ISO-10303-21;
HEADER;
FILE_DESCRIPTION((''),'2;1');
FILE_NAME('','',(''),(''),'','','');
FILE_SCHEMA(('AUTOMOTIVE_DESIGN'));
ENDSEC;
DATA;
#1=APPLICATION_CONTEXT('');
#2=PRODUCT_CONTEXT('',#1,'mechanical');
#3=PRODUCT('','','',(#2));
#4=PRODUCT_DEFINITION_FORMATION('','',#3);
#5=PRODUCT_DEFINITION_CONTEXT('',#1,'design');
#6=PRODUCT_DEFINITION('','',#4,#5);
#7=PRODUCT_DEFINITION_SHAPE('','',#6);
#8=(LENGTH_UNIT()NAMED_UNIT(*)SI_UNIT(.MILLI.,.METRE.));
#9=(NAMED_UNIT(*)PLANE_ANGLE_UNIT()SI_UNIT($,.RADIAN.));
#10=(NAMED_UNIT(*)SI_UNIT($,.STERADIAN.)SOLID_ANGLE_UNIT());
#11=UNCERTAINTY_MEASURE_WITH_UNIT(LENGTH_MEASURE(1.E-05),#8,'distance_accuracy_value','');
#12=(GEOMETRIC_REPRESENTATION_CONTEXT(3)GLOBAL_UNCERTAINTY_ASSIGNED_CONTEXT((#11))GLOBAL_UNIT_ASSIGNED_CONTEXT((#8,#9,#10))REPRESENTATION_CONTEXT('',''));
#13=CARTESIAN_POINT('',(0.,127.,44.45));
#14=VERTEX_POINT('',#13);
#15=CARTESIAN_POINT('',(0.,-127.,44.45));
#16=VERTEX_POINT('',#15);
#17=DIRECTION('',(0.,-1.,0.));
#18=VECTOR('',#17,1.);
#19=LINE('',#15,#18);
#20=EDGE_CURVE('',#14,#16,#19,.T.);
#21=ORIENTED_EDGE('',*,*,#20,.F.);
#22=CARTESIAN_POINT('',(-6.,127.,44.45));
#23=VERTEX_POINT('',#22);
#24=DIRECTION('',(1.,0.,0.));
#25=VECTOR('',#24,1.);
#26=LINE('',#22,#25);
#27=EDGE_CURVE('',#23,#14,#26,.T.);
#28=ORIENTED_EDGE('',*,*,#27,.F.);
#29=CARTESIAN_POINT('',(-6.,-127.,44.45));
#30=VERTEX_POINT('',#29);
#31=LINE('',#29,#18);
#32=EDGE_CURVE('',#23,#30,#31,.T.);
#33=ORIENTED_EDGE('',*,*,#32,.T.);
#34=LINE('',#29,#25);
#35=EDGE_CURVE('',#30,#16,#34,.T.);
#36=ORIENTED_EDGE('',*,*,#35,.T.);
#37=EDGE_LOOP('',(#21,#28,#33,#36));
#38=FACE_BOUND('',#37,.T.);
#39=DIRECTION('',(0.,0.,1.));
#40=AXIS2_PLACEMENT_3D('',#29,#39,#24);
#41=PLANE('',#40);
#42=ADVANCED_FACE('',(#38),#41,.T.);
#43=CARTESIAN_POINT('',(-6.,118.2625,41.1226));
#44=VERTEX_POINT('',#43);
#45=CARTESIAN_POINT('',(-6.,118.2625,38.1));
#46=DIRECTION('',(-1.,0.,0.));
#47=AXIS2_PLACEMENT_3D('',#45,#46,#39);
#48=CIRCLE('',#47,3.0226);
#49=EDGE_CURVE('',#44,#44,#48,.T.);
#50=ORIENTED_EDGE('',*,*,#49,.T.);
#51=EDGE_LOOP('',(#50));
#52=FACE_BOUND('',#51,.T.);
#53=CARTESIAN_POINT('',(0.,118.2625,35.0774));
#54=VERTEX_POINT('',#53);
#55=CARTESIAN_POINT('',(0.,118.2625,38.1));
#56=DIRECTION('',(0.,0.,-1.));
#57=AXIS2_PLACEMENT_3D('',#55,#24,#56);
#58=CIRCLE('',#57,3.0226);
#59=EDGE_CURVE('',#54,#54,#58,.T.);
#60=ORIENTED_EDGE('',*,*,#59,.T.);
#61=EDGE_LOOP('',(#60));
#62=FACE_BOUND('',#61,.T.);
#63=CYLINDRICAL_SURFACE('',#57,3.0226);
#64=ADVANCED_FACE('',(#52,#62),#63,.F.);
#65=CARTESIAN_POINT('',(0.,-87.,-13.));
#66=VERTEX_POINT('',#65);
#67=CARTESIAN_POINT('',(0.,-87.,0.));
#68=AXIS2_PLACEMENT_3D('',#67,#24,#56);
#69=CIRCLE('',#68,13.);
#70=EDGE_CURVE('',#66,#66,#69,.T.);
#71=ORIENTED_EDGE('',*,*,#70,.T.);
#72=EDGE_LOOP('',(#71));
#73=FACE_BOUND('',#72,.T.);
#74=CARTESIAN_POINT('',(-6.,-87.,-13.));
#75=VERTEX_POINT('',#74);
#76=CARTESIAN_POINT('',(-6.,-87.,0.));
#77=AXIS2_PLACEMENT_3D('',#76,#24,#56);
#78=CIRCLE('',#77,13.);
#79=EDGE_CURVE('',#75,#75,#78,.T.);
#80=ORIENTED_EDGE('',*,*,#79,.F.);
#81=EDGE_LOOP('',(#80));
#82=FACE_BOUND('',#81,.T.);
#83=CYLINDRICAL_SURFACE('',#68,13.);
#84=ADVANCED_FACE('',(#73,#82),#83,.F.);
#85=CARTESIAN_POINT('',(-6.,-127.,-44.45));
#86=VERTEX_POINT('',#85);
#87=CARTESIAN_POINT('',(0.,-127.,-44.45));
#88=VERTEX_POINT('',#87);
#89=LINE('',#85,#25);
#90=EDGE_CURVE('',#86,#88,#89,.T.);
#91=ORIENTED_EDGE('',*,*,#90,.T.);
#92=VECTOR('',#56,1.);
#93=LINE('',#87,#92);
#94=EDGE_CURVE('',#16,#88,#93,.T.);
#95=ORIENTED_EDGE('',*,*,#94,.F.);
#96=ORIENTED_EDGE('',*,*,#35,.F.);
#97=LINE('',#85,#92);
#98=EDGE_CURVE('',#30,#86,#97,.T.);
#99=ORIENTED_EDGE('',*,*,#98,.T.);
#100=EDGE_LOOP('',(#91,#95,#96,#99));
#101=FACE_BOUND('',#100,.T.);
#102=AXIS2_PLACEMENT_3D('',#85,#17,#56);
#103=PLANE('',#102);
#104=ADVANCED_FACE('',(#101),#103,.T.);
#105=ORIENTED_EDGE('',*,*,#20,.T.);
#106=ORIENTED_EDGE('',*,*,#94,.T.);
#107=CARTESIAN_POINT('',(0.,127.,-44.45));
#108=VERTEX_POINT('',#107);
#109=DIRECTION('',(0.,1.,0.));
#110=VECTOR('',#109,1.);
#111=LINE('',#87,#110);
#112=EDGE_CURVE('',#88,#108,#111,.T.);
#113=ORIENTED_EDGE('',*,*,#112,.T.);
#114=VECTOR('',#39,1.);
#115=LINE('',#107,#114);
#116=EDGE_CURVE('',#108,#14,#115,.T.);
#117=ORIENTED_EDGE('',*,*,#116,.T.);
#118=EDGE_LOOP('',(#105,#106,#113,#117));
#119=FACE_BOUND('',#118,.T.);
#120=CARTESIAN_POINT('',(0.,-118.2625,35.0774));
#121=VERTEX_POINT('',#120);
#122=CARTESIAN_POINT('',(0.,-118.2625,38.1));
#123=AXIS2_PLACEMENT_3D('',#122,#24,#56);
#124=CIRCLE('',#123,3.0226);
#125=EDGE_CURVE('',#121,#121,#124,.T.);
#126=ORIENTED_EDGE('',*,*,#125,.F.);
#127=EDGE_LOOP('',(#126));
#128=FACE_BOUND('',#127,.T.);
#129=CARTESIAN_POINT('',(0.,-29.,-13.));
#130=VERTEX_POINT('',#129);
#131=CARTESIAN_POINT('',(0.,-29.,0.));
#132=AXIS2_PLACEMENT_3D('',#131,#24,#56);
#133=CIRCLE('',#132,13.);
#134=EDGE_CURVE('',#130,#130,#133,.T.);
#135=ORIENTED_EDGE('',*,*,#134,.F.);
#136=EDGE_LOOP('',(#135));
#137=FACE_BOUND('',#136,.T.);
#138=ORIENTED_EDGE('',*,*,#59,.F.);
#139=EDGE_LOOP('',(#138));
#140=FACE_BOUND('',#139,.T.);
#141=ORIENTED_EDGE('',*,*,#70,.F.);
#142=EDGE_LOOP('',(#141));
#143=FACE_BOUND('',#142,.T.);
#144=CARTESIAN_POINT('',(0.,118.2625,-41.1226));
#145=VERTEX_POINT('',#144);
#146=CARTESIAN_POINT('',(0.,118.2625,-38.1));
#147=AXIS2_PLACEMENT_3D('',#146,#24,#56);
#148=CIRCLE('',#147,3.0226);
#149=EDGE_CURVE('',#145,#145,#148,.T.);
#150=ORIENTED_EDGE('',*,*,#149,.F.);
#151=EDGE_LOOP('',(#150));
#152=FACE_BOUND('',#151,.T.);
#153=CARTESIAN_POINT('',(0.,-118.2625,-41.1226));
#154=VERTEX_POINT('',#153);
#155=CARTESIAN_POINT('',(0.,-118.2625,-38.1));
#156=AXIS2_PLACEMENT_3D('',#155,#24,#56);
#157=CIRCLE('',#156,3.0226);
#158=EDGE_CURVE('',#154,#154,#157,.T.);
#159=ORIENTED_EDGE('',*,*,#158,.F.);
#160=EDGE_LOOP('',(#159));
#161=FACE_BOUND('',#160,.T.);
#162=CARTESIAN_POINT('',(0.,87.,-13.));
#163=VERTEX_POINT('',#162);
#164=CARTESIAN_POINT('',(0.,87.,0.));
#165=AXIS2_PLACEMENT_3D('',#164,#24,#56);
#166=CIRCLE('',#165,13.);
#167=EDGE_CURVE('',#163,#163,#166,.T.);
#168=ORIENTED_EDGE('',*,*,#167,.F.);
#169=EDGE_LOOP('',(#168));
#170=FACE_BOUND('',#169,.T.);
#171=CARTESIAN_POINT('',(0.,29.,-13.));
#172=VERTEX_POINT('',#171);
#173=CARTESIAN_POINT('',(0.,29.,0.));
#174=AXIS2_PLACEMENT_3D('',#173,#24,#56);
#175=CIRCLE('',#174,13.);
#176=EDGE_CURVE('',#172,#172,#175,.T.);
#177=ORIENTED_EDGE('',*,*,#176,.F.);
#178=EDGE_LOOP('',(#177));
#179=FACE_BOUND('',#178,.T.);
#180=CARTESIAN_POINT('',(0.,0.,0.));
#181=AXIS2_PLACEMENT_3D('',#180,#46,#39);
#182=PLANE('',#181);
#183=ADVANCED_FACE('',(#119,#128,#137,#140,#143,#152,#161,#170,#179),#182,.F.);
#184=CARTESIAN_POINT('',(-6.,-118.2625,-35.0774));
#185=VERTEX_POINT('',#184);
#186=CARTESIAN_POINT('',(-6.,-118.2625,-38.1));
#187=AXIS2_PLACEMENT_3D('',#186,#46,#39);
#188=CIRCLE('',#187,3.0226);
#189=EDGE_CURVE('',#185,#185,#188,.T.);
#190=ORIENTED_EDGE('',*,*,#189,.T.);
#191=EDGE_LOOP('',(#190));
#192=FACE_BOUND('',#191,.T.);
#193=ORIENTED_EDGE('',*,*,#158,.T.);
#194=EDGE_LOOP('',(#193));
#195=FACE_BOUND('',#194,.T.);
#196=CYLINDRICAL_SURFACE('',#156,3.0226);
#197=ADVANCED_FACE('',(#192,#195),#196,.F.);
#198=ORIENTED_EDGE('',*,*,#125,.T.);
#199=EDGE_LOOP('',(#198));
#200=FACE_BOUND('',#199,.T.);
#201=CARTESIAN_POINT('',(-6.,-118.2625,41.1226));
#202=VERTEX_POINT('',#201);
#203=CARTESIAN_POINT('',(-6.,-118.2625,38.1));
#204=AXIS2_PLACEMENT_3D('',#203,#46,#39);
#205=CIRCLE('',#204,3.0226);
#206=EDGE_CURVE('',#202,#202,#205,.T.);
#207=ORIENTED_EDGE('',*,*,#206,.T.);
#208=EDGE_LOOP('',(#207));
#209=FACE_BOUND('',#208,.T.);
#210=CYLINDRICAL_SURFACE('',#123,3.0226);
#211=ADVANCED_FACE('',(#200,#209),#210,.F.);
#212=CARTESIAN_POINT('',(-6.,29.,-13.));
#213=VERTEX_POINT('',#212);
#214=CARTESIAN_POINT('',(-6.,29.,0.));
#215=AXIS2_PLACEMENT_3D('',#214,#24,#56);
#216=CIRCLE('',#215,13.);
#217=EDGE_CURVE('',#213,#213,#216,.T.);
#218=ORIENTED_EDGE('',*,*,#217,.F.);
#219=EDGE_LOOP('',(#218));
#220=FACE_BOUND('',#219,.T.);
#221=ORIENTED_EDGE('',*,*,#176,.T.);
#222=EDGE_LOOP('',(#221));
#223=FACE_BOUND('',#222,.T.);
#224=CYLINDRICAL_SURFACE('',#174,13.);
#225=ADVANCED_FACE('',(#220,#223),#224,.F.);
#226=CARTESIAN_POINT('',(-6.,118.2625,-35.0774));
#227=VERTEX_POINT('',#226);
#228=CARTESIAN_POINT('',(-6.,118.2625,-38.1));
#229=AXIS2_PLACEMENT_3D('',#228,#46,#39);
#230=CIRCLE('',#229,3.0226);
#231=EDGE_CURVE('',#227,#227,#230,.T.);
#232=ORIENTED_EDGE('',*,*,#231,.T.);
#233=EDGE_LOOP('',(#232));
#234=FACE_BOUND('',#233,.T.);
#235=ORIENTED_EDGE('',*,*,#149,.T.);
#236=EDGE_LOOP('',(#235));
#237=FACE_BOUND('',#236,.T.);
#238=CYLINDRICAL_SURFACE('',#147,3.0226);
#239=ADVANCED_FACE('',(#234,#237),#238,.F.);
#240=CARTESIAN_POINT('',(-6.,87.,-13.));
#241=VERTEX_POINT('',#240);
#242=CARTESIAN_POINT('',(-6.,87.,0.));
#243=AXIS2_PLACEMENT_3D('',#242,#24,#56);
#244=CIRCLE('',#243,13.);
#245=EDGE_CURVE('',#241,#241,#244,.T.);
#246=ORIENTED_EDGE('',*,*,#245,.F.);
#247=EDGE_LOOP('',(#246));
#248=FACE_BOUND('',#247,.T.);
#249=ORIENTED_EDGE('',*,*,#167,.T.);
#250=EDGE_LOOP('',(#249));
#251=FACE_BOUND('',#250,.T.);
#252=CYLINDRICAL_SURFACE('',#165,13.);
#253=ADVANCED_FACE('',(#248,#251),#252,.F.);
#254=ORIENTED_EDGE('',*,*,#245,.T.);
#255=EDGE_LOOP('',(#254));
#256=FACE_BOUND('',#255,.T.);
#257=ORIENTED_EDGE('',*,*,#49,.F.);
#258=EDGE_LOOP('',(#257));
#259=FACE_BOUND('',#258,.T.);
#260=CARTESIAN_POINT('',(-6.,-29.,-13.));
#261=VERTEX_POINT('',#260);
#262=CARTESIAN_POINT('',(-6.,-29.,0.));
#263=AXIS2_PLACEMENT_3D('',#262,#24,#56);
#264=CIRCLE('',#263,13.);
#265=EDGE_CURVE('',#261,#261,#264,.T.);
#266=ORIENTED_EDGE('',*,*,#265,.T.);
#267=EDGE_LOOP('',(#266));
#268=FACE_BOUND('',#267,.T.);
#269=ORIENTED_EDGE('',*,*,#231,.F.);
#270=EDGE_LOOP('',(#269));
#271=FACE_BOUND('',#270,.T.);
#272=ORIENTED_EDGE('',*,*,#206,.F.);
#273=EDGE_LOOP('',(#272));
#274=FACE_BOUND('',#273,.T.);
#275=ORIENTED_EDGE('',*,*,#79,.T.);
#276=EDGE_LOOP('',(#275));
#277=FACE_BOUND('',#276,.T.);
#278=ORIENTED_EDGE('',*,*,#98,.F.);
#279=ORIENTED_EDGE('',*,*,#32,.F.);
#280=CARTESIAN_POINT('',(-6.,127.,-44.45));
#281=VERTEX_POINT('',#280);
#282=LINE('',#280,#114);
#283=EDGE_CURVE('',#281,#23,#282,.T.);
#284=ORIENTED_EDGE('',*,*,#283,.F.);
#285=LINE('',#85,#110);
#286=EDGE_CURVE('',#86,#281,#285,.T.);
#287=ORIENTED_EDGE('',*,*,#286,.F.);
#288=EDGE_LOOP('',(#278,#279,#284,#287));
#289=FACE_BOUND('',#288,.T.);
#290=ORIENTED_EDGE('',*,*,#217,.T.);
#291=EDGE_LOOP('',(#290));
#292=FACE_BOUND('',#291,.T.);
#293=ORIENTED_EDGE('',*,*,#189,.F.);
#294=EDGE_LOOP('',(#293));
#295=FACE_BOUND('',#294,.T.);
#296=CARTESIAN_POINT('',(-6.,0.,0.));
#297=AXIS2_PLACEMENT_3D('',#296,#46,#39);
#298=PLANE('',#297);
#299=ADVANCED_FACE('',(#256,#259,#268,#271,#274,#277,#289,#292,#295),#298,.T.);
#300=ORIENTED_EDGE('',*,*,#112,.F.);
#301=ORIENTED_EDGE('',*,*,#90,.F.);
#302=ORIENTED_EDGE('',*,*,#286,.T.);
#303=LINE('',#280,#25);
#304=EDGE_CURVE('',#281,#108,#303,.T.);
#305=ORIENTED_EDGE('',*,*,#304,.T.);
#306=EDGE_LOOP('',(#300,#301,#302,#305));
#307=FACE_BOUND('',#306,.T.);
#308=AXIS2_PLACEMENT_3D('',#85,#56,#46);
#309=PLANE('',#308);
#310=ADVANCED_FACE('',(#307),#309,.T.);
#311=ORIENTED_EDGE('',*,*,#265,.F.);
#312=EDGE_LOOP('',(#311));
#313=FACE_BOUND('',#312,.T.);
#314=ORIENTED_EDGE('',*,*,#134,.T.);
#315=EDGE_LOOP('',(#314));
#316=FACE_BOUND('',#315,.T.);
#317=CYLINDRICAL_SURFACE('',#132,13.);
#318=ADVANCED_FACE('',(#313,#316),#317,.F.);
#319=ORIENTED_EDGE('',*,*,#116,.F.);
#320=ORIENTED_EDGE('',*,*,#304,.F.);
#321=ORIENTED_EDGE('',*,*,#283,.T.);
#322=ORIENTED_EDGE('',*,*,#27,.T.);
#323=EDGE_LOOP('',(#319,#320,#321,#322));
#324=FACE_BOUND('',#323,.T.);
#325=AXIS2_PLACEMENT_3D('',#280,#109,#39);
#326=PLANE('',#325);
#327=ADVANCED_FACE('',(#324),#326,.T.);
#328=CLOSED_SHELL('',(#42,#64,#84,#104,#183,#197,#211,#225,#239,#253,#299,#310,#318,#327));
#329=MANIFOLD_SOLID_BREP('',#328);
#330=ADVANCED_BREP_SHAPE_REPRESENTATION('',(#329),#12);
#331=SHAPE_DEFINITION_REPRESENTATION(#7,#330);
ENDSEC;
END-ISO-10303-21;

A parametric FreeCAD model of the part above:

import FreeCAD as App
import Part
import Sketcher
from FreeCAD import Vector
Q = App.Units.Quantity

doc = App.newDocument("Part")
params = doc.addObject("Spreadsheet::Sheet", "Params")
for row, (alias, value) in enumerate([
    ("sketch1_width", "10 in"),
    ("sketch1_height", "3.5 in"),
    ("pad1_length", "6 mm"),
    ("sketch2_diameter", "0.238 in"),
    ("hole_diameter", "0.238 in"),
    ("hole2_diameter", "26 mm"),
], start=1):
    params.set(f"A{row}", alias)
    params.set(f"B{row}", "=" + value)
    params.setAlias(f"B{row}", alias)

body = doc.addObject("PartDesign::Body", "Body")

# Sketch on YZ plane
sketch1 = body.newObject("Sketcher::SketchObject", "Sketch")
sketch1.AttachmentSupport = (doc.getObject("YZ_Plane"), [""])
sketch1.MapMode = "FlatFace"
sketch1.addGeometry([
    Part.LineSegment(Vector(-127, 44.45, 0), Vector(-127, -44.45, 0)),
    Part.LineSegment(Vector(-127, -44.45, 0), Vector(127, -44.45, 0)),
    Part.LineSegment(Vector(127, -44.45, 0), Vector(127, 44.45, 0)),
    Part.LineSegment(Vector(127, 44.45, 0), Vector(-127, 44.45, 0)),
], False)
sketch1.addConstraint([
    Sketcher.Constraint("Coincident", 0, 2, 1, 1),
    Sketcher.Constraint("Coincident", 1, 2, 2, 1),
    Sketcher.Constraint("Coincident", 2, 2, 3, 1),
    Sketcher.Constraint("Coincident", 3, 2, 0, 1),
    Sketcher.Constraint("Vertical", 0),
    Sketcher.Constraint("Horizontal", 1),
    Sketcher.Constraint("Vertical", 2),
    Sketcher.Constraint("Horizontal", 3),
    Sketcher.Constraint("Symmetric", 0, 2, 2, 2, -1, 1),
    Sketcher.Constraint("DistanceX", 1, 1, 1, 2, Q("10 in")),
    Sketcher.Constraint("DistanceY", 0, 2, 0, 1, Q("3.5 in")),
])
sketch1.setExpression("Constraints[9]", "Params.sketch1_width")
sketch1.setExpression("Constraints[10]", "Params.sketch1_height")
pad1 = body.newObject("PartDesign::Pad", "Pad")
pad1.Profile = sketch1
pad1.setExpression("Length", "Params.pad1_length")
pad1.Reversed = True

# Sketch on YZ plane
sketch2 = body.newObject("Sketcher::SketchObject", "Sketch001")
sketch2.AttachmentSupport = (doc.getObject("YZ_Plane"), [""])
sketch2.MapMode = "FlatFace"
sketch2.addGeometry([
    Part.Circle(Vector(118.2625, 38.1, 0), Vector(0, 0, 1), 3.0226),
    Part.Circle(Vector(-118.2625, 38.1, 0), Vector(0, 0, 1), 3.0226),
    Part.Circle(Vector(-118.2625, -38.1, 0), Vector(0, 0, 1), 3.0226),
    Part.Circle(Vector(118.2625, -38.1, 0), Vector(0, 0, 1), 3.0226),
], False)
sketch2.addConstraint([
    Sketcher.Constraint("Equal", 0, 1),
    Sketcher.Constraint("Equal", 1, 2),
    Sketcher.Constraint("Equal", 2, 3),
    Sketcher.Constraint("Symmetric", 0, 3, 2, 3, -1, 1),
    Sketcher.Constraint("Symmetric", 1, 3, 3, 3, -1, 1),
    Sketcher.Constraint("Symmetric", 0, 3, 1, 3, -2),
    Sketcher.Constraint("Diameter", 0, Q("0.238 in")),
    Sketcher.Constraint("DistanceY", 2, 3, 1, 3, Q("3 in")),
    Sketcher.Constraint("DistanceX", -1, 1, 0, 3, 118.2625),
])
sketch2.setExpression("Constraints[6]", "Params.sketch2_diameter")
doc.recompute()
hole = body.newObject("PartDesign::Hole", "Hole")
hole.Profile = sketch2
hole.ThreadType = "None"
hole.setExpression("Diameter", "Params.hole_diameter")
hole.DepthType = "ThroughAll"

# Sketch on YZ plane
sketch3 = body.newObject("Sketcher::SketchObject", "Sketch002")
sketch3.AttachmentSupport = (doc.getObject("YZ_Plane"), [""])
sketch3.MapMode = "FlatFace"
sketch3.addGeometry([
    Part.Circle(Vector(87, 0, 0), Vector(0, 0, 1), 13),
    Part.Circle(Vector(29, 0, 0), Vector(0, 0, 1), 13),
    Part.Circle(Vector(-29, 0, 0), Vector(0, 0, 1), 13),
    Part.Circle(Vector(-87, 0, 0), Vector(0, 0, 1), 13),
], False)
sketch3.addConstraint([
    Sketcher.Constraint("Equal", 0, 1),
    Sketcher.Constraint("Equal", 1, 2),
    Sketcher.Constraint("Equal", 2, 3),
    Sketcher.Constraint("Symmetric", 1, 3, 2, 3, -1, 1),
    Sketcher.Constraint("Symmetric", 0, 3, 3, 3, -1, 1),
    Sketcher.Constraint("PointOnObject", 0, 3, -1),
    Sketcher.Constraint("PointOnObject", 1, 3, -1),
    Sketcher.Constraint("Diameter", 0, 26.0),
    Sketcher.Constraint("DistanceX", -1, 1, 0, 3, 87.0),
    Sketcher.Constraint("DistanceX", -1, 1, 1, 3, 29.0),
])
doc.recompute()
hole2 = body.newObject("PartDesign::Hole", "Hole001")
hole2.Profile = sketch3
hole2.ThreadType = "None"
hole2.setExpression("Diameter", "Params.hole2_diameter")
hole2.DepthType = "ThroughAll"

doc.recompute()
